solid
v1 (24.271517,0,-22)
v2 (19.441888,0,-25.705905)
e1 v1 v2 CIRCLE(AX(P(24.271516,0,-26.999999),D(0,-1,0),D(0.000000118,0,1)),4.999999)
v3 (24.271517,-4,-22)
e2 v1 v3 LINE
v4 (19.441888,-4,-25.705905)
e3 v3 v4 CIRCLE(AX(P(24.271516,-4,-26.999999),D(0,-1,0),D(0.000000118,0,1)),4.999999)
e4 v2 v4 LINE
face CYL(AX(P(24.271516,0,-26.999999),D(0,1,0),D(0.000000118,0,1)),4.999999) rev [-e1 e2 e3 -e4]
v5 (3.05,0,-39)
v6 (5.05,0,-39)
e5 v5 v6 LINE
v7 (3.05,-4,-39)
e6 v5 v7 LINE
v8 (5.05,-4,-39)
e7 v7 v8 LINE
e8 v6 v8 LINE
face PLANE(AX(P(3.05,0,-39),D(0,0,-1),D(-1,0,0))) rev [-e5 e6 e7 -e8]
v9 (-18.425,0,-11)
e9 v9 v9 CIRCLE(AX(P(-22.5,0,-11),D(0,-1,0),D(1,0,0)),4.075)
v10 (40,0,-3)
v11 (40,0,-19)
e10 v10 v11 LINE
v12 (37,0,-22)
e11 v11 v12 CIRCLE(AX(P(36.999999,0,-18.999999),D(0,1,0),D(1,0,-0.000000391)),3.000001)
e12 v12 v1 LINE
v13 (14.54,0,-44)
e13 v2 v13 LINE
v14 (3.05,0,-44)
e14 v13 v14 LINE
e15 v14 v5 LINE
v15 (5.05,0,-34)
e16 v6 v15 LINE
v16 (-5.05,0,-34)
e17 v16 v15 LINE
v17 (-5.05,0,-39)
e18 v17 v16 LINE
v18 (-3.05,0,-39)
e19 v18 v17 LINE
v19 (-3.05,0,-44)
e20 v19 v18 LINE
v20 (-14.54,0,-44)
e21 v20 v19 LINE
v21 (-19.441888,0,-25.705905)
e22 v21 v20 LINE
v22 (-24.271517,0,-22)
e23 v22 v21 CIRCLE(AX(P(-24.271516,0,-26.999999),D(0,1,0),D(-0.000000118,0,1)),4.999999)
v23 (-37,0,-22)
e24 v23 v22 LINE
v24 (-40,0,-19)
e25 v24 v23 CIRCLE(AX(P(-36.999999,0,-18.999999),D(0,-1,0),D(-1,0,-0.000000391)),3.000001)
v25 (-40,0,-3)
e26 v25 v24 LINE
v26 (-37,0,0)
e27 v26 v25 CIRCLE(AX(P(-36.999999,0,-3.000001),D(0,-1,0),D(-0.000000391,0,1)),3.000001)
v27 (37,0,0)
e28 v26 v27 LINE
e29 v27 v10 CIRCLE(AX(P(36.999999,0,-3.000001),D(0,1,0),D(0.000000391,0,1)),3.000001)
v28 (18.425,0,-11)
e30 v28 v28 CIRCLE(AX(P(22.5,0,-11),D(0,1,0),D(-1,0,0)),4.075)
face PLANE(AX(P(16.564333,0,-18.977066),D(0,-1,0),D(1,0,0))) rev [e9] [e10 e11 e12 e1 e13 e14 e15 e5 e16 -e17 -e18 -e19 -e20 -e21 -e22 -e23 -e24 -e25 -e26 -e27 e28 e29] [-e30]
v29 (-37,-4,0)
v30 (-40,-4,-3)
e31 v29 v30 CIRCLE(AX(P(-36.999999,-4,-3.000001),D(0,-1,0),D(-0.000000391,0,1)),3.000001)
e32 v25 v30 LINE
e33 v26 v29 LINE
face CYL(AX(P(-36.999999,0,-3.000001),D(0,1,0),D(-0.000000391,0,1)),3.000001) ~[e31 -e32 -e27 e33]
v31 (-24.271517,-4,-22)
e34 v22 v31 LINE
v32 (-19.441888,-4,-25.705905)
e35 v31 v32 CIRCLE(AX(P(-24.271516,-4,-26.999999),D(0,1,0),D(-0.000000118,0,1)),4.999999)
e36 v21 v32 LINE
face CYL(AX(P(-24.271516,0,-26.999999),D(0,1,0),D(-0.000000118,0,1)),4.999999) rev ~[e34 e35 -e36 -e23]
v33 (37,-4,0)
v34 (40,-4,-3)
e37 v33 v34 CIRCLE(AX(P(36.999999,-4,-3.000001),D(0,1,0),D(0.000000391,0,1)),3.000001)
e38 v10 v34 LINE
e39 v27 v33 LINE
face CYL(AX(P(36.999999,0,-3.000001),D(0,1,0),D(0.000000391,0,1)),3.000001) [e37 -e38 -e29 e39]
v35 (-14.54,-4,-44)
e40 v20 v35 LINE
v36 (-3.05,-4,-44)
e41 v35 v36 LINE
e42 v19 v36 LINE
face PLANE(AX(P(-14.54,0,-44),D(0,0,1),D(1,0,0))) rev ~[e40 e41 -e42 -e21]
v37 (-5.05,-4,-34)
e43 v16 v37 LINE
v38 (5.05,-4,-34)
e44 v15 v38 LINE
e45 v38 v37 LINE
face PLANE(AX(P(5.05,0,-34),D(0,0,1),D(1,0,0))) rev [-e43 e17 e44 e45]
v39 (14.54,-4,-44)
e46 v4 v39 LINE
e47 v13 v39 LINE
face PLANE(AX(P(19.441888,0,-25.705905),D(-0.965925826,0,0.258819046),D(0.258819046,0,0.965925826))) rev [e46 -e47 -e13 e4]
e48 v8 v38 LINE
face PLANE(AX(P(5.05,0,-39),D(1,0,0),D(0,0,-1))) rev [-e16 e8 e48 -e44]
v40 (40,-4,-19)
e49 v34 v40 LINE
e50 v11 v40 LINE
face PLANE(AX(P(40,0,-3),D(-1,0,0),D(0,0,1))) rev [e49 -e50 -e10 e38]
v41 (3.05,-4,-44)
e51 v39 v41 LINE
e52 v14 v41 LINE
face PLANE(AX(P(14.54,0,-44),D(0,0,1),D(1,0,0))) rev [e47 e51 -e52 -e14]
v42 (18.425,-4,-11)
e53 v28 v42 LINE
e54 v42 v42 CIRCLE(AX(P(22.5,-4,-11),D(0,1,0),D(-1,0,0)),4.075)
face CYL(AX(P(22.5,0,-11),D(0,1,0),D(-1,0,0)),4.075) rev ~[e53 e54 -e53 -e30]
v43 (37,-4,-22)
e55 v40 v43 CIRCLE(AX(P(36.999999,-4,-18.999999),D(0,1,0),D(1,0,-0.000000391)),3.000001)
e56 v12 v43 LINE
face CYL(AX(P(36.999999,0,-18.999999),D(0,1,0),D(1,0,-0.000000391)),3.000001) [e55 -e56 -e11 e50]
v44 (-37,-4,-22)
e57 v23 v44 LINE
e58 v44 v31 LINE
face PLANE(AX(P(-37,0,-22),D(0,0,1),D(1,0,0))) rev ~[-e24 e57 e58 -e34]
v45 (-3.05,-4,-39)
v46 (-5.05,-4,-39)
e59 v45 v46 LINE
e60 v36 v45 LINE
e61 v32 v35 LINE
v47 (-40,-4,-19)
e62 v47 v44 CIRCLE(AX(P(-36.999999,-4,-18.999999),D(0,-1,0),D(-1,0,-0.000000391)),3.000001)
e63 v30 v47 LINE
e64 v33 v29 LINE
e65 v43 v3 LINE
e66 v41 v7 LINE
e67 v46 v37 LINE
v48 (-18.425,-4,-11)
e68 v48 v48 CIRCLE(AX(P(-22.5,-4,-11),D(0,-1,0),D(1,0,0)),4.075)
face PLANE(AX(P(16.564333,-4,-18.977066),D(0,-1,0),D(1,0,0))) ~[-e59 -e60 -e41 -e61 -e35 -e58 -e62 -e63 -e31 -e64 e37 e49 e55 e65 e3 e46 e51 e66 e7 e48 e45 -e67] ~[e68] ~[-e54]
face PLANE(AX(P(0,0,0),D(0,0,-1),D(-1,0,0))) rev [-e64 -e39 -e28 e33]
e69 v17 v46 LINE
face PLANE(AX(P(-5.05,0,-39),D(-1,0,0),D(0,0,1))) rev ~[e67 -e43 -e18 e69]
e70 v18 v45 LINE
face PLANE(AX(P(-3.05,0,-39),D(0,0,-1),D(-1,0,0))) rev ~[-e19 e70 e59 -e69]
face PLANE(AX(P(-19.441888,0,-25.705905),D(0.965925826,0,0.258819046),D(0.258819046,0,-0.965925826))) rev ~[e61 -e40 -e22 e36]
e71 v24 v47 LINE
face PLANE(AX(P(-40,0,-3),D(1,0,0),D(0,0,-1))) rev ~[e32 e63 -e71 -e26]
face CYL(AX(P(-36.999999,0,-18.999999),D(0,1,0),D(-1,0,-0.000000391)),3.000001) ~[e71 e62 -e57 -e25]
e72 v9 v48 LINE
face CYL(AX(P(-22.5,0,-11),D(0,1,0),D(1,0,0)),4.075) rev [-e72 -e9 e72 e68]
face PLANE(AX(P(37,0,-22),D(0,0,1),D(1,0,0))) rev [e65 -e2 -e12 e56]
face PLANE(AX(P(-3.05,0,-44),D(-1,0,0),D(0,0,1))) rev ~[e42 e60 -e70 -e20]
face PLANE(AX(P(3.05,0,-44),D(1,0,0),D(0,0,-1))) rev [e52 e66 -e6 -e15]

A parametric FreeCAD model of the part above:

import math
import FreeCAD as App
import Part
import Sketcher
from FreeCAD import Vector
Q = App.Units.Quantity

doc = App.newDocument("Part")
body = doc.addObject("PartDesign::Body", "Body")

sketch1 = body.newObject("Sketcher::SketchObject", "Sketch")
sketch1.AttachmentSupport = (doc.getObject("XZ_Plane"), [""])
sketch1.MapMode = "FlatFace"
sketch1.addGeometry(Part.LineSegment(Vector(0, -34, 0), Vector(0, 0, 0)), False)
sketch1.addGeometry(Part.LineSegment(Vector(0, 0, 0), Vector(-37, 0, 0)), False)
sketch1.addGeometry(Part.ArcOfCircle(Part.Circle(Vector(-36.999999, -3.000001, 0), Vector(0, 0, 1), 3.000001), math.radians(90.000022), math.radians(179.999978)), False)
sketch1.addGeometry(Part.LineSegment(Vector(-40, -3, 0), Vector(-40, -19, 0)), False)
sketch1.addGeometry(Part.ArcOfCircle(Part.Circle(Vector(-36.999999, -18.999999, 0), Vector(0, 0, 1), 3.000001), math.radians(-179.999978), math.radians(-90.000022)), False)
sketch1.addGeometry(Part.LineSegment(Vector(-37, -22, 0), Vector(-24.271517, -22, 0)), False)
sketch1.addGeometry(Part.ArcOfCircle(Part.Circle(Vector(-24.271516, -26.999999, 0), Vector(0, 0, 1), 4.999999), math.radians(14.999988), math.radians(90.000007)), False)
sketch1.addGeometry(Part.LineSegment(Vector(-19.441888, -25.705905, 0), Vector(-14.54, -44, 0)), False)
sketch1.addGeometry(Part.LineSegment(Vector(-14.54, -44, 0), Vector(-3.05, -44, 0)), False)
sketch1.addGeometry(Part.LineSegment(Vector(-3.05, -44, 0), Vector(-3.05, -39, 0)), False)
sketch1.addGeometry(Part.LineSegment(Vector(-3.05, -39, 0), Vector(-5.05, -39, 0)), False)
sketch1.addGeometry(Part.LineSegment(Vector(-5.05, -39, 0), Vector(-5.05, -34, 0)), False)
sketch1.addGeometry(Part.LineSegment(Vector(-5.05, -34, 0), Vector(0, -34, 0)), False)
sketch1.addGeometry(Part.Circle(Vector(-22.5, -11, 0), Vector(0, 0, 1), 4.075), False)
sketch1.addConstraint(Sketcher.Constraint("Coincident", 0, 2, 1, 1))
sketch1.addConstraint(Sketcher.Constraint("Tangent", 1, 2, 2, 1))
sketch1.addConstraint(Sketcher.Constraint("Tangent", 2, 2, 3, 1))
sketch1.addConstraint(Sketcher.Constraint("Tangent", 3, 2, 4, 1))
sketch1.addConstraint(Sketcher.Constraint("Tangent", 4, 2, 5, 1))
sketch1.addConstraint(Sketcher.Constraint("Tangent", 5, 2, 6, 2))
sketch1.addConstraint(Sketcher.Constraint("Tangent", 6, 1, 7, 1))
sketch1.addConstraint(Sketcher.Constraint("Coincident", 7, 2, 8, 1))
sketch1.addConstraint(Sketcher.Constraint("Coincident", 8, 2, 9, 1))
sketch1.addConstraint(Sketcher.Constraint("Coincident", 9, 2, 10, 1))
sketch1.addConstraint(Sketcher.Constraint("Coincident", 10, 2, 11, 1))
sketch1.addConstraint(Sketcher.Constraint("Coincident", 11, 2, 12, 1))
sketch1.addConstraint(Sketcher.Constraint("Coincident", 12, 2, 0, 1))
sketch1.addConstraint(Sketcher.Constraint("Vertical", 0))
sketch1.addConstraint(Sketcher.Constraint("Horizontal", 1))
sketch1.addConstraint(Sketcher.Constraint("Vertical", 3))
sketch1.addConstraint(Sketcher.Constraint("Horizontal", 5))
sketch1.addConstraint(Sketcher.Constraint("Horizontal", 8))
sketch1.addConstraint(Sketcher.Constraint("Vertical", 9))
sketch1.addConstraint(Sketcher.Constraint("Horizontal", 10))
sketch1.addConstraint(Sketcher.Constraint("Vertical", 11))
sketch1.addConstraint(Sketcher.Constraint("Horizontal", 12))
sketch1.addConstraint(Sketcher.Constraint("Coincident", 0, 2, -1, 1))
sketch1.addConstraint(Sketcher.Constraint("Equal", 2, 4))
sketch1.addConstraint(Sketcher.Constraint("Equal", 9, 11))
sketch1.addConstraint(Sketcher.Constraint("Radius", 2, Q("3.000001 mm")))
sketch1.addConstraint(Sketcher.Constraint("Radius", 6, Q("4.999999 mm")))
sketch1.addConstraint(Sketcher.Constraint("Diameter", 13, Q("8.15 mm")))
sketch1.addConstraint(Sketcher.Constraint("DistanceX", 1, 2, 1, 1, Q("37 mm")))
sketch1.addConstraint(Sketcher.Constraint("DistanceX", 10, 2, 10, 1, Q("2 mm")))
sketch1.addConstraint(Sketcher.Constraint("DistanceY", 0, 1, 0, 2, Q("34 mm")))
sketch1.addConstraint(Sketcher.Constraint("DistanceY", 3, 2, 3, 1, Q("16 mm")))
sketch1.addConstraint(Sketcher.Constraint("DistanceY", 9, 1, 9, 2, Q("5 mm")))
sketch1.addConstraint(Sketcher.Constraint("Angle", 7, Q("-75 deg")))
sketch1.addConstraint(Sketcher.Constraint("DistanceY", 13, 3, -1, 1, Q("11 mm")))
sketch1.addConstraint(Sketcher.Constraint("DistanceX", 8, 1, 8, 2, Q("11.49 mm")))
sketch1.addConstraint(Sketcher.Constraint("DistanceX", 12, 1, 12, 2, Q("5.05 mm")))
sketch1.addConstraint(Sketcher.Constraint("DistanceX", 13, 3, -1, 1, Q("22.5 mm")))
pad1 = body.newObject("PartDesign::Pad", "Pad")
pad1.Profile = sketch1
pad1.Length = 4
body2 = doc.addObject("PartDesign::Body", "Body001")
doc.recompute()

body2.BaseFeature = body
doc.recompute()

mirroring = doc.addObject("Part::Mirroring", "Mirroring")
mirroring.Source = body
mirroring.Base = Vector(0, -2, -17)
mirroring.Normal = Vector(1, 0, 0)
body3 = doc.addObject("PartDesign::Body", "Body002")
body3.BaseFeature = mirroring
boolean = body2.newObject("PartDesign::Boolean", "Boolean")
boolean.Type = "Fuse"
boolean.addObjects([body3])
doc.recompute()
mirroring.Visibility = False

doc.recompute()
